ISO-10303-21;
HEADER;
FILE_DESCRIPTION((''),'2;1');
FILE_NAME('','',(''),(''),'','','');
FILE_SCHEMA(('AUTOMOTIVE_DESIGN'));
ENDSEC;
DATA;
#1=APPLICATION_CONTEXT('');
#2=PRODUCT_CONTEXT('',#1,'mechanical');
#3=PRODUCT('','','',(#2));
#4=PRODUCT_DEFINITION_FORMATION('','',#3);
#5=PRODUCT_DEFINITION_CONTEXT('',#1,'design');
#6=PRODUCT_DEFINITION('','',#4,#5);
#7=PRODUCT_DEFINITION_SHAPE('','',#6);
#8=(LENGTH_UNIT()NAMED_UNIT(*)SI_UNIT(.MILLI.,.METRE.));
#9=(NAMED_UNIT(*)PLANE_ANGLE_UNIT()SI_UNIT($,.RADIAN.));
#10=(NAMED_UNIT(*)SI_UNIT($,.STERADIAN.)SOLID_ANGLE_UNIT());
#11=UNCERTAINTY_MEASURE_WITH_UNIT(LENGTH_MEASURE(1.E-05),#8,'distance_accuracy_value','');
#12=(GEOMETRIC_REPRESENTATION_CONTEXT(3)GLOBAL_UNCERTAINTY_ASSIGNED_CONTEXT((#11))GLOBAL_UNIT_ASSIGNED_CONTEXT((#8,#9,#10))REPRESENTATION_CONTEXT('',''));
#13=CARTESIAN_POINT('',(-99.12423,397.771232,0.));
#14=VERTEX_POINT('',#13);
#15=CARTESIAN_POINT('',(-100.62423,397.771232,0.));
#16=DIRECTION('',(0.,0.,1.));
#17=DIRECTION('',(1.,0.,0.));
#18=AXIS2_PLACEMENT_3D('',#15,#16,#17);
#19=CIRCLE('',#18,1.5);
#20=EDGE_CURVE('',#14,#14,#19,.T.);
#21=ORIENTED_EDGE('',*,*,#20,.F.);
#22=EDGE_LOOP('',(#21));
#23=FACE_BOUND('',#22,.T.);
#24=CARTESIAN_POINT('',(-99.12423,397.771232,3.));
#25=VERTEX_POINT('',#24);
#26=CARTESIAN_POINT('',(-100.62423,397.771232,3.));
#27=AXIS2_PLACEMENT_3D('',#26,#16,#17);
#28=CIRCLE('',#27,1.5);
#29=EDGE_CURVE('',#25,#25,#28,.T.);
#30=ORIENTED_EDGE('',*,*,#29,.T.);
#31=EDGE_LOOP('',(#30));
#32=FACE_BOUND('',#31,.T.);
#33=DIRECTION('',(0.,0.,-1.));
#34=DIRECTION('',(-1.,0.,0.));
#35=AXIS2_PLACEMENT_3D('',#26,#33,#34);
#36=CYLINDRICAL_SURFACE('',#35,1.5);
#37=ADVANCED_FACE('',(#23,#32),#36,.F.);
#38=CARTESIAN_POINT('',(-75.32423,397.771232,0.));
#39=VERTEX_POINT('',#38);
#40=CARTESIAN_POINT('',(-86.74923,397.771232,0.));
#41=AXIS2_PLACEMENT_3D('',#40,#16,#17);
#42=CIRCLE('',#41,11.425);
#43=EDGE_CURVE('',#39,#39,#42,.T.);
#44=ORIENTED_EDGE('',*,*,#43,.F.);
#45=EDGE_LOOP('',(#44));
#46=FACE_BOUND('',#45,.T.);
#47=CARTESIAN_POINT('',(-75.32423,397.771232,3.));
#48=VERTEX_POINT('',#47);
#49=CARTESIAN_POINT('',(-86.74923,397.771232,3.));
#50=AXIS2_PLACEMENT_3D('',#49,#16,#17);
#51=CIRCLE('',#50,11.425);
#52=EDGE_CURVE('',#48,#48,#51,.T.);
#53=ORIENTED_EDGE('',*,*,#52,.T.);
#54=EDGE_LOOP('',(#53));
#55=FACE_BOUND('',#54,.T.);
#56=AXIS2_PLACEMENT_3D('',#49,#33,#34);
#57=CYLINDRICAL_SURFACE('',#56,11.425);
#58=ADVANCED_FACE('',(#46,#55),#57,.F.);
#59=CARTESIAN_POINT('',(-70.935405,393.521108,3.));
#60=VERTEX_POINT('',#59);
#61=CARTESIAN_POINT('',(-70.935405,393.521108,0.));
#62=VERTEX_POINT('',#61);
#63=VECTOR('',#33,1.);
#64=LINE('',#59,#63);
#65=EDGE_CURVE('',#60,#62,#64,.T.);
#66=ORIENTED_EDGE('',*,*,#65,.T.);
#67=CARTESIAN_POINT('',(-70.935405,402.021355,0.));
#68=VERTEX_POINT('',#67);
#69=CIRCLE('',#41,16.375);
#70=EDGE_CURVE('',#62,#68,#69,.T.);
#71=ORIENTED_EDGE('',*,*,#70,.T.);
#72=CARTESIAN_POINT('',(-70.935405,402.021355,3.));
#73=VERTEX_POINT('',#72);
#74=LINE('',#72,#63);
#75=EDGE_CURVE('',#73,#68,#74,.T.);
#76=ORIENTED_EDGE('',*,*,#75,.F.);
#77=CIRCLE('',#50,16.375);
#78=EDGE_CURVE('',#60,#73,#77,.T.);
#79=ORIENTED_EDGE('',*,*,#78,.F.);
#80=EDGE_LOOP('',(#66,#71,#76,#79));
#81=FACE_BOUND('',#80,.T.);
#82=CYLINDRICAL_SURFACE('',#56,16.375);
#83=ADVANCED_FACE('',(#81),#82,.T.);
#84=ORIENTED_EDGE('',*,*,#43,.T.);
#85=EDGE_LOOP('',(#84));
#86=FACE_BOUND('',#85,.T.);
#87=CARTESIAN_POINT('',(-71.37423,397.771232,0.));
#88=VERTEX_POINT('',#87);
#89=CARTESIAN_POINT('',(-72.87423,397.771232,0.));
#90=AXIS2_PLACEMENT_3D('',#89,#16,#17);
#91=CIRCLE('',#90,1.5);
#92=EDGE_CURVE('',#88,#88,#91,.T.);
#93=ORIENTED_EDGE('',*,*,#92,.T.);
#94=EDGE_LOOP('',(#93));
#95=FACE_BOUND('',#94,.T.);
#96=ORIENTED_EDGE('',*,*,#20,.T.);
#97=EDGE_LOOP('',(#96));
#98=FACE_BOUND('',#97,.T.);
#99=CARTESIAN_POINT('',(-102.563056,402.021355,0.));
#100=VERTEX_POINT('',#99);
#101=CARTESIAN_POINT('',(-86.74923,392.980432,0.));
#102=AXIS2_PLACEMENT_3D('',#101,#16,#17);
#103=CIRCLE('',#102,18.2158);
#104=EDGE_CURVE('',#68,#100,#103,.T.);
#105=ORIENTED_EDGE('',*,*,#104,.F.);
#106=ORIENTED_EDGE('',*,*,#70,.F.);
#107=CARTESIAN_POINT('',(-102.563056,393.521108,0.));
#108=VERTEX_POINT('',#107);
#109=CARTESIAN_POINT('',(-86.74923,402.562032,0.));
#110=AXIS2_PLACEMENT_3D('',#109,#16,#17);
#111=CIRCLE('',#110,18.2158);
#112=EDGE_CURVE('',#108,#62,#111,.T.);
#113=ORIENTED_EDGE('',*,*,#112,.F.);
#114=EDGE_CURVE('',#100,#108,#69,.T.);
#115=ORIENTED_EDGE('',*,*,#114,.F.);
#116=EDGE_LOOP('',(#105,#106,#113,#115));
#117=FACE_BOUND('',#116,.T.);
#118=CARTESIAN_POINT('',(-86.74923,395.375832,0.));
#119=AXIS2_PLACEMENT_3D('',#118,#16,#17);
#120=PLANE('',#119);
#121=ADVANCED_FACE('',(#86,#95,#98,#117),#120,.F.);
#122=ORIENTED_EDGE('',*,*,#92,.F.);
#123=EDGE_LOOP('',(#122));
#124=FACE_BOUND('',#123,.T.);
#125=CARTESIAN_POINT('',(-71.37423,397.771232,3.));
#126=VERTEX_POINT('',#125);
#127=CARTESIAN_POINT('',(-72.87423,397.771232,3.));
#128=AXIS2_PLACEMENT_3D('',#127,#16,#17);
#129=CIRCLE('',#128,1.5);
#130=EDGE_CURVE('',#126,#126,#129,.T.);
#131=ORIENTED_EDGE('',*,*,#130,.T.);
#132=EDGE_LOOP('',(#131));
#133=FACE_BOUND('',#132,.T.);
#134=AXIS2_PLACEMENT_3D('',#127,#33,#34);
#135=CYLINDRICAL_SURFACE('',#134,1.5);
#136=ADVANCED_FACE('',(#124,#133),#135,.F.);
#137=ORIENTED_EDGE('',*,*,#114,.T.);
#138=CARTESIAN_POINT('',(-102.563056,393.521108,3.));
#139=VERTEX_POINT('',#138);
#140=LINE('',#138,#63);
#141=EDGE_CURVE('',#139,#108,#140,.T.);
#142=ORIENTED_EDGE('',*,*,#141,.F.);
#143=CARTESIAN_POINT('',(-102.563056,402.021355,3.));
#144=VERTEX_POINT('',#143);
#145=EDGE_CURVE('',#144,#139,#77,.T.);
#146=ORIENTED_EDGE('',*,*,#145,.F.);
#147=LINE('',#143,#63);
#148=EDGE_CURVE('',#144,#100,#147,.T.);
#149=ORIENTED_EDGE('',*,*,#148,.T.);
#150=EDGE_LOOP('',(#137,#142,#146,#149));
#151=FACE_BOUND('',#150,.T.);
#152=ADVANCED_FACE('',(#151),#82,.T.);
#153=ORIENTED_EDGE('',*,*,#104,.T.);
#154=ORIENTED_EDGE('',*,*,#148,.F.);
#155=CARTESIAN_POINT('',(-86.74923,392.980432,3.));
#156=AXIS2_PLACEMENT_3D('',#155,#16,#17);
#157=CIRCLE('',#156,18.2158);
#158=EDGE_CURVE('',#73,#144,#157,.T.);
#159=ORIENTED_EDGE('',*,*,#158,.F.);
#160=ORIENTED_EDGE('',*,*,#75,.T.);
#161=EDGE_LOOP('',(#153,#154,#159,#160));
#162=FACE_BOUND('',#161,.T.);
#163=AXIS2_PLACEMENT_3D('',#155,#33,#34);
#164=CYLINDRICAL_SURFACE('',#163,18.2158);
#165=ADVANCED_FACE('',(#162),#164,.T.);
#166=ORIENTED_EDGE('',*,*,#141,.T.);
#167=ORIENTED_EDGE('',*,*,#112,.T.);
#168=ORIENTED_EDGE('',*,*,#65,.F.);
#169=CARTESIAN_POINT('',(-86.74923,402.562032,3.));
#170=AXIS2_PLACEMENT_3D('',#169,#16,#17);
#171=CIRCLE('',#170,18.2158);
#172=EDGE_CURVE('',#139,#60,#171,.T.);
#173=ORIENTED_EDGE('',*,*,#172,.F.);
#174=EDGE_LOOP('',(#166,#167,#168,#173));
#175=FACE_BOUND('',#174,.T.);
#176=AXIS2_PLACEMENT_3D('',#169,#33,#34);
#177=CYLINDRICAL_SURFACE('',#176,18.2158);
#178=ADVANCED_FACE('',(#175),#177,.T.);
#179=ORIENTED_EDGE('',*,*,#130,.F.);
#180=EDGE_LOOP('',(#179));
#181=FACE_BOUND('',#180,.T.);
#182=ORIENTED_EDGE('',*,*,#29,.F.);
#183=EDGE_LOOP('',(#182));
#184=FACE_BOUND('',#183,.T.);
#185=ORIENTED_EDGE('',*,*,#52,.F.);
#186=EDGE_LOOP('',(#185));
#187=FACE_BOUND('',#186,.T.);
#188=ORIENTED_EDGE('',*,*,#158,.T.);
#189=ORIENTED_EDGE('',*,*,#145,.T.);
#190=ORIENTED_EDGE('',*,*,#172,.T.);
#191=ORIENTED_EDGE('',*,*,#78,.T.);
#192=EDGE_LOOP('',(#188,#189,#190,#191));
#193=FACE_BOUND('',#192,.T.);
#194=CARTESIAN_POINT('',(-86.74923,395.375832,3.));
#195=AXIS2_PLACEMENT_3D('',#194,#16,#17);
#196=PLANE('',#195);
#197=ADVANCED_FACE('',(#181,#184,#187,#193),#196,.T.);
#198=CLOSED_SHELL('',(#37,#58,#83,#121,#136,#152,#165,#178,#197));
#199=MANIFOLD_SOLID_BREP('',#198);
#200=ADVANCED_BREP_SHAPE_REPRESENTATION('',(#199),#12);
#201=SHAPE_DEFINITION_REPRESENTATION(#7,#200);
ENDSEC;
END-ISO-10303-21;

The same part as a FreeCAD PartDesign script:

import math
import FreeCAD as App
import Part
import Sketcher

V = App.Vector
Q = App.Units.Quantity

doc = App.newDocument("Part")
body = doc.addObject("PartDesign::Body", "Body")

# Sketch on XY plane
sketch1 = doc.addObject("Sketcher::SketchObject", "Sketch")
body.addObject(sketch1)
sketch1.AttachmentSupport = (doc.XY_Plane, [""])
sketch1.MapMode = "FlatFace"
sketch1.addGeometry([
    Part.ArcOfCircle(Part.Circle(V(-86.7, 397.8, 0), V(0, 0, 1), 16.4), math.radians(165), math.radians(195)),  # 0
    Part.ArcOfCircle(Part.Circle(V(-86.7, 402.6, 0), V(0, 0, 1), 18.2), math.radians(-150), math.radians(-30)),  # 1
    Part.ArcOfCircle(Part.Circle(V(-86.7, 397.8, 0), V(0, 0, 1), 16.4), math.radians(-15), math.radians(15)),  # 2
    Part.ArcOfCircle(Part.Circle(V(-86.7, 393, 0), V(0, 0, 1), 18.2), math.radians(30), math.radians(150)),  # 3
    Part.Circle(V(-100.6, 397.8, 0), V(0, 0, 1), 1.5),  # 4
    Part.Circle(V(-86.7, 397.8, 0), V(0, 0, 1), 11.4),  # 5
    Part.Circle(V(-72.9, 397.8, 0), V(0, 0, 1), 1.5),  # 6
], False)
sketch1.addConstraint([
    Sketcher.Constraint("Coincident", 0, 2, 1, 1),
    Sketcher.Constraint("Coincident", 1, 2, 2, 1),
    Sketcher.Constraint("Coincident", 2, 2, 3, 1),
    Sketcher.Constraint("Coincident", 3, 2, 0, 1),
    Sketcher.Constraint("Coincident", 2, 3, 0, 3),
    Sketcher.Constraint("Coincident", 5, 3, 0, 3),
    Sketcher.Constraint("Equal", 0, 2),
    Sketcher.Constraint("Equal", 1, 3),
    Sketcher.Constraint("Equal", 4, 6),
    Sketcher.Constraint("Horizontal", 2, 3, 4, 3),
    Sketcher.Constraint("Horizontal", 5, 3, 6, 3),
    Sketcher.Constraint("Horizontal", 0, 2, 1, 2),
    Sketcher.Constraint("Horizontal", 2, 2, 3, 2),
    Sketcher.Constraint("Vertical", 1, 2, 2, 2),
    Sketcher.Constraint("Diameter", 4, Q("3 mm")),
    Sketcher.Constraint("Diameter", 5, Q("22.85 mm")),
    Sketcher.Constraint("Radius", 0, Q("16.375 mm")),
    Sketcher.Constraint("Radius", 1, Q("18.2158 mm")),
    Sketcher.Constraint("DistanceX", 4, 3, 2, 3, Q("13.875 mm")),
    Sketcher.Constraint("DistanceX", 5, 3, 6, 3, Q("13.875 mm")),
    Sketcher.Constraint("DistanceY", 0, 3, 1, 3, Q("4.7908 mm")),
    Sketcher.Constraint("DistanceX", 0, 3, -1, 1, Q("86.74923 mm")),
    Sketcher.Constraint("DistanceY", -1, 1, 0, 3, Q("397.771232 mm")),
])
pad1 = doc.addObject("PartDesign::Pad", "Pad")
body.addObject(pad1)
pad1.Profile = sketch1
pad1.Length = 3

doc.recompute()
